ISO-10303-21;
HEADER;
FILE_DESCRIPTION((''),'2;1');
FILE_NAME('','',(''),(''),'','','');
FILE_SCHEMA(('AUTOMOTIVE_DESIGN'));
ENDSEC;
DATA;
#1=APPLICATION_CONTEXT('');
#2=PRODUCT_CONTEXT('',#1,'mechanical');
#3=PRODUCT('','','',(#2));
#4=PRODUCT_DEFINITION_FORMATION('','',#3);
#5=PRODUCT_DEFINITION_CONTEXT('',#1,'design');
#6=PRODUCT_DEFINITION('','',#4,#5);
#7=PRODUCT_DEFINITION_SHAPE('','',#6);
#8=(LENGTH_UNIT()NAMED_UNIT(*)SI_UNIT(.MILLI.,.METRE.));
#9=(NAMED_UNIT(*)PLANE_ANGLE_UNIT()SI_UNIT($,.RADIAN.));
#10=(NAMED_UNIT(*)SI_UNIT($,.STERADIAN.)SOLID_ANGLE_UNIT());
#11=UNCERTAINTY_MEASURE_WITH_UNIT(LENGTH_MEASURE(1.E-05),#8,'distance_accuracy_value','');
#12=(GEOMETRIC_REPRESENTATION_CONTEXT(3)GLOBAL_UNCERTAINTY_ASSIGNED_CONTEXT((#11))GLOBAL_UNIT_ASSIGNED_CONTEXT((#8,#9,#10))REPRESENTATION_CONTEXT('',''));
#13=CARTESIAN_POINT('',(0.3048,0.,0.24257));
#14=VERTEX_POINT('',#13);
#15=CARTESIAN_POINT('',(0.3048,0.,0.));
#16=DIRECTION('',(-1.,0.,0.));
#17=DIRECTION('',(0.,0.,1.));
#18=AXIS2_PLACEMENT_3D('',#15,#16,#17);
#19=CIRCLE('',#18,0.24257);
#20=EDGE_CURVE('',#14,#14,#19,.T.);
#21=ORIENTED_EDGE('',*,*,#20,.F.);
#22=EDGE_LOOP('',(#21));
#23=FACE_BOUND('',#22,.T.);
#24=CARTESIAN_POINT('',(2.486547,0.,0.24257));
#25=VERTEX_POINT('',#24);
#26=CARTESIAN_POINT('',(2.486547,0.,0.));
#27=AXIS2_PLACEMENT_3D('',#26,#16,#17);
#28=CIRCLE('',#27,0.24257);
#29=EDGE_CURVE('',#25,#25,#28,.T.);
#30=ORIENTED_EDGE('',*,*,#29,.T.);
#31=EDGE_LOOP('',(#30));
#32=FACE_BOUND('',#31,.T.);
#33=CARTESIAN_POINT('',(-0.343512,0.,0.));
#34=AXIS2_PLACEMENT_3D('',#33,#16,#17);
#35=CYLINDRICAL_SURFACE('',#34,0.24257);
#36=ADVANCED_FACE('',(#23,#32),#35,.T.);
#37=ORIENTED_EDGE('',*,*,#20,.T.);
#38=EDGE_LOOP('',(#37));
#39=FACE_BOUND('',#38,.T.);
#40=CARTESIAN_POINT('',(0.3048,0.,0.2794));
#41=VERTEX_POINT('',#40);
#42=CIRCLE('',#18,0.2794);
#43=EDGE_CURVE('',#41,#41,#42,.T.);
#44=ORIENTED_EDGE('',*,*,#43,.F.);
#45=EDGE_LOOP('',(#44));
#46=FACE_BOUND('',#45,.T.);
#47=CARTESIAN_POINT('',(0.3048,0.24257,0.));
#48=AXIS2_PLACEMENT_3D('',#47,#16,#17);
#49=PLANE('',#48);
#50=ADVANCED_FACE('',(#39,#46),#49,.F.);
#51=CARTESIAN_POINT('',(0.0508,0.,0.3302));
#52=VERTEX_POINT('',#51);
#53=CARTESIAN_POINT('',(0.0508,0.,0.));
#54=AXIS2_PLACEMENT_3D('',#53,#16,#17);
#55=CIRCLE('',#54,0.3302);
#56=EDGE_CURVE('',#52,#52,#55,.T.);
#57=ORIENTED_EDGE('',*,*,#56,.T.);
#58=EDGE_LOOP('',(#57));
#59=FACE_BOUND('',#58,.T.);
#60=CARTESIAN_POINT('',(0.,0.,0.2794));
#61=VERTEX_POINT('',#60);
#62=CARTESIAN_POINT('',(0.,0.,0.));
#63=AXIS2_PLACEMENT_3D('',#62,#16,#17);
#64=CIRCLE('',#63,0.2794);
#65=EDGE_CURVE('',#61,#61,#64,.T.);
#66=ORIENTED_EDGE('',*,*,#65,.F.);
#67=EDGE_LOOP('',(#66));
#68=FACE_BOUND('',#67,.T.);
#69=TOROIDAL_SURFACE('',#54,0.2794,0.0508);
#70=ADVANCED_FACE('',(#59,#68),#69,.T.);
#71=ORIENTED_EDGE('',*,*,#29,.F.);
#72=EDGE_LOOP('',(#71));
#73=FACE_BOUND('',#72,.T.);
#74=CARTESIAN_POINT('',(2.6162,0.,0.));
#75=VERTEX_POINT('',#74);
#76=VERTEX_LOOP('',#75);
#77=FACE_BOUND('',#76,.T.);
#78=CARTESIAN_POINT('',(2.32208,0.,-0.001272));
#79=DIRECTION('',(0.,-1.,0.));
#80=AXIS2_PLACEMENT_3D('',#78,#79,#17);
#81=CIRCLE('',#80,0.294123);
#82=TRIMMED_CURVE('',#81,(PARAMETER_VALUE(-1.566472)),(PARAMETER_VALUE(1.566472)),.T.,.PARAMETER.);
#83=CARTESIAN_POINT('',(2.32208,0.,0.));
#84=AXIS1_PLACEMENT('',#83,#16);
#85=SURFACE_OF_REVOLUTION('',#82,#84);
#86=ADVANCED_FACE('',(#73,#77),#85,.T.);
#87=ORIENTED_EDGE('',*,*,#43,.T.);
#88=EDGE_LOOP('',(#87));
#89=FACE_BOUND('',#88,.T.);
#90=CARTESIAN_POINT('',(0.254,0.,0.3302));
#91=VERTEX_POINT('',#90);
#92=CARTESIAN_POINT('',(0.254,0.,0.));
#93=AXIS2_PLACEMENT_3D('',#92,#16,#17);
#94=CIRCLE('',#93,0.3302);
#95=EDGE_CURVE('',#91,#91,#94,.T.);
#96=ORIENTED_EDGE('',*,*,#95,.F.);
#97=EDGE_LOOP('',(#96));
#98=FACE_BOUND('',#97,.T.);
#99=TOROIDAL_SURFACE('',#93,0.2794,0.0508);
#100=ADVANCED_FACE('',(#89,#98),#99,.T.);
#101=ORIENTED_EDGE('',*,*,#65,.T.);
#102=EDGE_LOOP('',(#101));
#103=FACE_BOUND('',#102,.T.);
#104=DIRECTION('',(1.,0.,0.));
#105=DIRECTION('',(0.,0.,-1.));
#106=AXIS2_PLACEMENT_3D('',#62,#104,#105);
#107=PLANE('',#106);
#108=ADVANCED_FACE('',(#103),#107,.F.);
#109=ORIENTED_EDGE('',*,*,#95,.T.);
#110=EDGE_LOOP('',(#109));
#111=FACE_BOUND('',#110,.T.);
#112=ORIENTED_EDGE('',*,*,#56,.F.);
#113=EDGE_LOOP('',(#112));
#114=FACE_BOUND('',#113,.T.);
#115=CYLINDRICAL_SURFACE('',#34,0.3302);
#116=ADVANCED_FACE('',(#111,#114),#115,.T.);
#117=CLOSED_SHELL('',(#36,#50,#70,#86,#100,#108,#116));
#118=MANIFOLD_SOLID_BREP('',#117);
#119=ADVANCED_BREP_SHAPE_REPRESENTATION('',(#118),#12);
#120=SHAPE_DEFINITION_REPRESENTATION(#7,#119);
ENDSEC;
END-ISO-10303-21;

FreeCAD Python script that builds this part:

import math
import FreeCAD as App
import Part
import Sketcher
from FreeCAD import Vector
Q = App.Units.Quantity

doc = App.newDocument("Part")
body = doc.addObject("PartDesign::Body", "Body")

# Sketch on XY plane
sketch1 = body.newObject("Sketcher::SketchObject", "Sketch")
sketch1.AttachmentSupport = (doc.getObject("XY_Plane"), [""])
sketch1.MapMode = "FlatFace"
sketch1.addGeometry([
    Part.LineSegment(Vector(0, 0, 0), Vector(2.6162, 0, 0)),  # 0
    Part.ArcOfCircle(Part.Circle(Vector(2.32208, -0.001272, 0), Vector(0, 0, 1), 0.294123), math.radians(0.247779), math.radians(56.001064)),  # 1
    Part.LineSegment(Vector(2.486547, 0.24257, 0), Vector(0.3048, 0.24257, 0)),  # 2
    Part.LineSegment(Vector(0.3048, 0.24257, 0), Vector(0.3048, 0.2794, 0)),  # 3
    Part.ArcOfCircle(Part.Circle(Vector(0.254, 0.2794, 0), Vector(0, 0, 1), 0.0508), math.radians(0.000002), math.radians(89.999998)),  # 4
    Part.LineSegment(Vector(0.254, 0.3302, 0), Vector(0.0508, 0.3302, 0)),  # 5
    Part.ArcOfCircle(Part.Circle(Vector(0.0508, 0.2794, 0), Vector(0, 0, 1), 0.0508), math.radians(90.000002), math.radians(179.999998)),  # 6
    Part.LineSegment(Vector(0, 0.2794, 0), Vector(0, 0, 0)),  # 7
], False)
sketch1.addConstraint([
    Sketcher.Constraint("Coincident", 0, 2, 1, 1),
    Sketcher.Constraint("Coincident", 1, 2, 2, 1),
    Sketcher.Constraint("Coincident", 2, 2, 3, 1),
    Sketcher.Constraint("Tangent", 3, 2, 4, 1),
    Sketcher.Constraint("Tangent", 4, 2, 5, 1),
    Sketcher.Constraint("Tangent", 5, 2, 6, 1),
    Sketcher.Constraint("Tangent", 6, 2, 7, 1),
    Sketcher.Constraint("Coincident", 7, 2, 0, 1),
    Sketcher.Constraint("Horizontal", 0),
    Sketcher.Constraint("Horizontal", 2),
    Sketcher.Constraint("Vertical", 3),
    Sketcher.Constraint("Horizontal", 5),
    Sketcher.Constraint("Vertical", 7),
    Sketcher.Constraint("Coincident", 7, 2, -1, 1),
    Sketcher.Constraint("Equal", 4, 6),
    Sketcher.Constraint("Radius", 4, Q("0.002 in")),
    Sketcher.Constraint("DistanceX", 0, 1, 0, 2, Q("0.103 in")),
    Sketcher.Constraint("DistanceX", 5, 2, 5, 1, Q("0.008 in")),
    Sketcher.Constraint("DistanceY", 7, 2, 7, 1, Q("0.011 in")),
    Sketcher.Constraint("Radius", 1, 0.294123),
    Sketcher.Constraint("DistanceY", 1, 3, 1, 2, Q("0.0096001 in")),
    Sketcher.Constraint("DistanceY", 3, 1, 3, 2, 0.03683),
])
revolution = body.newObject("PartDesign::Revolution", "Revolution")
revolution.Profile = sketch1
revolution.ReferenceAxis = (sketch1, ["H_Axis"])
revolution.Angle = 360

doc.recompute()
